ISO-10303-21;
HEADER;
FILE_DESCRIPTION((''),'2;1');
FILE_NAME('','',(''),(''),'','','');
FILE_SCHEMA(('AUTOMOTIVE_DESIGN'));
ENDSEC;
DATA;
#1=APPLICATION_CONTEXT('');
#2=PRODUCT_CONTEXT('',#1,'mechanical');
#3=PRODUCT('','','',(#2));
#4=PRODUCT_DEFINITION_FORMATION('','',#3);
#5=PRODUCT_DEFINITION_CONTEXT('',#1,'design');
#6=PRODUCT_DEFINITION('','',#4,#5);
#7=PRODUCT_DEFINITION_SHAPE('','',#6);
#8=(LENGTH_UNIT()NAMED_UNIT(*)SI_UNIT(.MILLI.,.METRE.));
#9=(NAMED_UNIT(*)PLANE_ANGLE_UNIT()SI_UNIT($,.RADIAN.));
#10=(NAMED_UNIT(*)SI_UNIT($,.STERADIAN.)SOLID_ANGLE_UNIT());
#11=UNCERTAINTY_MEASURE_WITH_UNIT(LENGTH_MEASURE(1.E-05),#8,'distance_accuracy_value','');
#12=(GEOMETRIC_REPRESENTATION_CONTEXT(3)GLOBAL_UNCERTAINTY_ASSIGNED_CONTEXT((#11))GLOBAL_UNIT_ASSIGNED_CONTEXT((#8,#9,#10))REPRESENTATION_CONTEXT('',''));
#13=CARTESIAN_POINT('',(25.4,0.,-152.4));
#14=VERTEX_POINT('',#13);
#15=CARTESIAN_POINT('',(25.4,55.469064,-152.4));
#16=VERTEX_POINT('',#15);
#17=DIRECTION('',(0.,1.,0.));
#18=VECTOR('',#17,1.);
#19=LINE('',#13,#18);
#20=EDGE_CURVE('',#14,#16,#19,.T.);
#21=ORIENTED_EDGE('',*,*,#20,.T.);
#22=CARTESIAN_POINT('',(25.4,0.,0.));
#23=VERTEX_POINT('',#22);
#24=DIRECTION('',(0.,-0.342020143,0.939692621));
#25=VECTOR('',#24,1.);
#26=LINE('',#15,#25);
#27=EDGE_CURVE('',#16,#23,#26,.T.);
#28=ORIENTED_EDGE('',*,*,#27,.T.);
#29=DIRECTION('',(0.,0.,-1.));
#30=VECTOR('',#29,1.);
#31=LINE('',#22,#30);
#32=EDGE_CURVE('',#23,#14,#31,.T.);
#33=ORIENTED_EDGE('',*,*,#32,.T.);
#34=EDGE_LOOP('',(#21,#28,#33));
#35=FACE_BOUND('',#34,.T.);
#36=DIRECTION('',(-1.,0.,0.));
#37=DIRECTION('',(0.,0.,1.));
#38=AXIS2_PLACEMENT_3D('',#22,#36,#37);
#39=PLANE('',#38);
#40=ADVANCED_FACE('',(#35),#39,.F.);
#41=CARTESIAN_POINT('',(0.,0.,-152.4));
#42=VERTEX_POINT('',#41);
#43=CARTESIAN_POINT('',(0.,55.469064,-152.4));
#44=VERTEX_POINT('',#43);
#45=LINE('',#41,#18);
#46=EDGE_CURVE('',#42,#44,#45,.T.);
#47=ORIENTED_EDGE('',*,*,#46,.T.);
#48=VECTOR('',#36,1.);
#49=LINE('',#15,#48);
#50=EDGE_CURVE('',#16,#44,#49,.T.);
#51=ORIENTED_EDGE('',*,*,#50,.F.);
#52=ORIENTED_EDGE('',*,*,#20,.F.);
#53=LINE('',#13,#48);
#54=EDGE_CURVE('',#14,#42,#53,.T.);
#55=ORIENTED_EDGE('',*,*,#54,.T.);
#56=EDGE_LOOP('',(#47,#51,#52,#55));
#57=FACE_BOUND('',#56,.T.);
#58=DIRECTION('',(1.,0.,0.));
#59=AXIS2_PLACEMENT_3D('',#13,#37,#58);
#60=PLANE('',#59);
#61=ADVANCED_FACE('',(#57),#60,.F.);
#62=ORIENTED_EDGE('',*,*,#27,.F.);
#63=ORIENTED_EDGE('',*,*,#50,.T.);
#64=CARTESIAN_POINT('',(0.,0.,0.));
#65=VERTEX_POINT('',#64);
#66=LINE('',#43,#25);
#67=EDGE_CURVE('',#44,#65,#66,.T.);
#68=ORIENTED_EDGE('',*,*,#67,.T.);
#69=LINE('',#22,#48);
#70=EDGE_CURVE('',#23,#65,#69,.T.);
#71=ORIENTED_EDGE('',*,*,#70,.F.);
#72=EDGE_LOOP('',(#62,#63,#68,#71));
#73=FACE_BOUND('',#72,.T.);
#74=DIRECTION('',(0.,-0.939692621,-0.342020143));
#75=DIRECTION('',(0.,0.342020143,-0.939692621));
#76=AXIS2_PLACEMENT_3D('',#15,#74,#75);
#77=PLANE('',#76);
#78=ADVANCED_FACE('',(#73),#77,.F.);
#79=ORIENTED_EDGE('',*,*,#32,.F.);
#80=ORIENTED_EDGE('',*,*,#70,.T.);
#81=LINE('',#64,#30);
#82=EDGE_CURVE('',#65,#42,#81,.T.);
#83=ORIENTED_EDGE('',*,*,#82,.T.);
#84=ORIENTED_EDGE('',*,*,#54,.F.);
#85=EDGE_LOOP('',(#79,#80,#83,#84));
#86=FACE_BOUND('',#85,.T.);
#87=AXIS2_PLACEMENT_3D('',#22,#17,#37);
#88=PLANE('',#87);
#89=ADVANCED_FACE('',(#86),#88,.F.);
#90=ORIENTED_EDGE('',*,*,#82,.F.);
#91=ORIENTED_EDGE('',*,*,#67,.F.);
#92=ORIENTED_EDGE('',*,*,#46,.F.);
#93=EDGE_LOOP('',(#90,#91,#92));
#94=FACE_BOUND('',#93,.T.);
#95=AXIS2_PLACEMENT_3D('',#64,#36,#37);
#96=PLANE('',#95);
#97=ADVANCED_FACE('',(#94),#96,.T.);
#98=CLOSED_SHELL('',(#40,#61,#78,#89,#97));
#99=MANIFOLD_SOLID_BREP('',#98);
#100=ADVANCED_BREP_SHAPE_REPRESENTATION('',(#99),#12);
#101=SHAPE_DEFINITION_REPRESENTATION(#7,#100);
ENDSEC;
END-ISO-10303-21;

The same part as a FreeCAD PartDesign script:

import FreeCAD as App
import Part
import Sketcher

V = App.Vector
Q = App.Units.Quantity

doc = App.newDocument("Part")
body = doc.addObject("PartDesign::Body", "Body")

sketch1 = doc.addObject("Sketcher::SketchObject", "Sketch")
body.addObject(sketch1)
sketch1.AttachmentSupport = (doc.YZ_Plane, [""])
sketch1.MapMode = "FlatFace"
sketch1.addGeometry(Part.LineSegment(V(0, 0, 0), V(0, -152, 0)), False)
sketch1.addGeometry(Part.LineSegment(V(0, -152, 0), V(55, -152, 0)), False)
sketch1.addGeometry(Part.LineSegment(V(55, -152, 0), V(0, 0, 0)), False)
sketch1.addConstraint(Sketcher.Constraint("Coincident", 0, 2, 1, 1))
sketch1.addConstraint(Sketcher.Constraint("Coincident", 1, 2, 2, 1))
sketch1.addConstraint(Sketcher.Constraint("Coincident", 2, 2, 0, 1))
sketch1.addConstraint(Sketcher.Constraint("Vertical", 0))
sketch1.addConstraint(Sketcher.Constraint("Horizontal", 1))
sketch1.addConstraint(Sketcher.Constraint("Coincident", 2, 2, -1, 1))
sketch1.addConstraint(Sketcher.Constraint("DistanceY", 0, 2, 0, 1, Q("6 in")))
sketch1.addConstraint(Sketcher.Constraint("Angle", 2, Q("110 deg")))
pad1 = doc.addObject("PartDesign::Pad", "Pad")
body.addObject(pad1)
pad1.Profile = sketch1
pad1.Length = Q("1 in")

doc.recompute()
